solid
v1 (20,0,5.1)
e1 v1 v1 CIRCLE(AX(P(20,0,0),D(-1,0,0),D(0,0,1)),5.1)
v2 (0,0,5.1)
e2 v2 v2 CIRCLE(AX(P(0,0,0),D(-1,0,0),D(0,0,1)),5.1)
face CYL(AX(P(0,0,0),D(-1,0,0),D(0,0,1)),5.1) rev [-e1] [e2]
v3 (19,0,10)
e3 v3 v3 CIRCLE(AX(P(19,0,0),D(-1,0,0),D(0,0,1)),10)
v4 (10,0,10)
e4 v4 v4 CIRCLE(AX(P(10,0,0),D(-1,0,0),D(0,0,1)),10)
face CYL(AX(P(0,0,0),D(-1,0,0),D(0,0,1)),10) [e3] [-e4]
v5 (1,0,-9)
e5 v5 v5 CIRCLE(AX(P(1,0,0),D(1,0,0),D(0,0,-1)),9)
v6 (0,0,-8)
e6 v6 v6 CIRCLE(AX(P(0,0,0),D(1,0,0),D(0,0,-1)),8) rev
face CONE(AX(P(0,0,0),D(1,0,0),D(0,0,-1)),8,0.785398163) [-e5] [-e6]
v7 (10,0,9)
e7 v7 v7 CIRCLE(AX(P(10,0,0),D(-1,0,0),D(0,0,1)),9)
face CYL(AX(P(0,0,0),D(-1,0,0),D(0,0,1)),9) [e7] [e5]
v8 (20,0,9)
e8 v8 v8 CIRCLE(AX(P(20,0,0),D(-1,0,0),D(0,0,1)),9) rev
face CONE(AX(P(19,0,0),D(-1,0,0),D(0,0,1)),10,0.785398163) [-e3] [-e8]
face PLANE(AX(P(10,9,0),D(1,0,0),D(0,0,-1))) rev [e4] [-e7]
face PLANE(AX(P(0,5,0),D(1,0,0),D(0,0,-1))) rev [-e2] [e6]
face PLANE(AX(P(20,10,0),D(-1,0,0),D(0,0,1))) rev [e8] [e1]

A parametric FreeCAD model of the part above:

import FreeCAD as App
import Part
import Sketcher


def edges_at(feature, points):
    """Names of the edges that pass closest to the given points."""
    edges = feature.Shape.Edges
    near = lambda p: min(range(len(edges)), key=lambda i: edges[i].distToShape(Part.Vertex(*p))[0])
    return sorted({f"Edge{near(p) + 1}" for p in points})


def add_polygon(sketch, points):
    """Adds a closed chain of lines whose ends are joined by coincident constraints."""
    first, n = sketch.GeometryCount, len(points)
    for a, b in zip(points, points[1:] + points[:1]):
        sketch.addGeometry(Part.LineSegment(App.Vector(*a, 0), App.Vector(*b, 0)), False)
    for i in range(n):
        sketch.addConstraint(Sketcher.Constraint("Coincident", first + i, 2, first + (i + 1) % n, 1))

doc = App.newDocument("Part")
body = doc.addObject("PartDesign::Body", "Body")

sketch1 = body.newObject("Sketcher::SketchObject", "Sketch")
sketch1.AttachmentSupport = (doc.getObject("XY_Plane"), [""])
sketch1.MapMode = "FlatFace"
add_polygon(sketch1, [(0, 9), (0, 5), (20, 5), (20, 10), (10, 10), (10, 9)])
sketch1.addConstraint([
    Sketcher.Constraint("Vertical", 0),
    Sketcher.Constraint("Horizontal", 1),
    Sketcher.Constraint("Vertical", 2),
    Sketcher.Constraint("Horizontal", 3),
    Sketcher.Constraint("Vertical", 4),
    Sketcher.Constraint("Horizontal", 5),
    Sketcher.Constraint("PointOnObject", 0, 2, -2),
    Sketcher.Constraint("Equal", 3, 5),
    Sketcher.Constraint("DistanceX", 1, 1, 1, 2, 20.0),
    Sketcher.Constraint("DistanceY", 0, 2, 0, 1, 4.0),
    Sketcher.Constraint("DistanceY", 2, 1, 2, 2, 5.0),
    Sketcher.Constraint("DistanceY", -1, 1, 0, 2, 5.0),
])
revolution = body.newObject("PartDesign::Revolution", "Revolution")
revolution.Profile = sketch1
revolution.ReferenceAxis = (sketch1, ["H_Axis"])
revolution.Angle = 360

sketch2 = body.newObject("Sketcher::SketchObject", "Sketch001")
sketch2.AttachmentSupport = (doc.getObject("YZ_Plane"), [""])
sketch2.MapMode = "FlatFace"
sketch2.addGeometry(Part.Circle(App.Vector(0, 0, 0), App.Vector(0, 0, 1), 5.1), False)
sketch2.addConstraint([
    Sketcher.Constraint("Coincident", 0, 3, -1, 1),
    Sketcher.Constraint("Diameter", 0, 10.2),
])
doc.recompute()
hole = body.newObject("PartDesign::Hole", "Hole")
hole.Profile = sketch2
hole.ThreadType = "None"
hole.Diameter = 10.2
hole.DepthType = "ThroughAll"
hole.Reversed = True
doc.recompute()

chamfer = body.newObject("PartDesign::Chamfer", "Chamfer")
chamfer.Base = (hole, edges_at(hole, [(20, 0, -10), (0, 0, -9)]))
chamfer.Size = 1

doc.recompute()
